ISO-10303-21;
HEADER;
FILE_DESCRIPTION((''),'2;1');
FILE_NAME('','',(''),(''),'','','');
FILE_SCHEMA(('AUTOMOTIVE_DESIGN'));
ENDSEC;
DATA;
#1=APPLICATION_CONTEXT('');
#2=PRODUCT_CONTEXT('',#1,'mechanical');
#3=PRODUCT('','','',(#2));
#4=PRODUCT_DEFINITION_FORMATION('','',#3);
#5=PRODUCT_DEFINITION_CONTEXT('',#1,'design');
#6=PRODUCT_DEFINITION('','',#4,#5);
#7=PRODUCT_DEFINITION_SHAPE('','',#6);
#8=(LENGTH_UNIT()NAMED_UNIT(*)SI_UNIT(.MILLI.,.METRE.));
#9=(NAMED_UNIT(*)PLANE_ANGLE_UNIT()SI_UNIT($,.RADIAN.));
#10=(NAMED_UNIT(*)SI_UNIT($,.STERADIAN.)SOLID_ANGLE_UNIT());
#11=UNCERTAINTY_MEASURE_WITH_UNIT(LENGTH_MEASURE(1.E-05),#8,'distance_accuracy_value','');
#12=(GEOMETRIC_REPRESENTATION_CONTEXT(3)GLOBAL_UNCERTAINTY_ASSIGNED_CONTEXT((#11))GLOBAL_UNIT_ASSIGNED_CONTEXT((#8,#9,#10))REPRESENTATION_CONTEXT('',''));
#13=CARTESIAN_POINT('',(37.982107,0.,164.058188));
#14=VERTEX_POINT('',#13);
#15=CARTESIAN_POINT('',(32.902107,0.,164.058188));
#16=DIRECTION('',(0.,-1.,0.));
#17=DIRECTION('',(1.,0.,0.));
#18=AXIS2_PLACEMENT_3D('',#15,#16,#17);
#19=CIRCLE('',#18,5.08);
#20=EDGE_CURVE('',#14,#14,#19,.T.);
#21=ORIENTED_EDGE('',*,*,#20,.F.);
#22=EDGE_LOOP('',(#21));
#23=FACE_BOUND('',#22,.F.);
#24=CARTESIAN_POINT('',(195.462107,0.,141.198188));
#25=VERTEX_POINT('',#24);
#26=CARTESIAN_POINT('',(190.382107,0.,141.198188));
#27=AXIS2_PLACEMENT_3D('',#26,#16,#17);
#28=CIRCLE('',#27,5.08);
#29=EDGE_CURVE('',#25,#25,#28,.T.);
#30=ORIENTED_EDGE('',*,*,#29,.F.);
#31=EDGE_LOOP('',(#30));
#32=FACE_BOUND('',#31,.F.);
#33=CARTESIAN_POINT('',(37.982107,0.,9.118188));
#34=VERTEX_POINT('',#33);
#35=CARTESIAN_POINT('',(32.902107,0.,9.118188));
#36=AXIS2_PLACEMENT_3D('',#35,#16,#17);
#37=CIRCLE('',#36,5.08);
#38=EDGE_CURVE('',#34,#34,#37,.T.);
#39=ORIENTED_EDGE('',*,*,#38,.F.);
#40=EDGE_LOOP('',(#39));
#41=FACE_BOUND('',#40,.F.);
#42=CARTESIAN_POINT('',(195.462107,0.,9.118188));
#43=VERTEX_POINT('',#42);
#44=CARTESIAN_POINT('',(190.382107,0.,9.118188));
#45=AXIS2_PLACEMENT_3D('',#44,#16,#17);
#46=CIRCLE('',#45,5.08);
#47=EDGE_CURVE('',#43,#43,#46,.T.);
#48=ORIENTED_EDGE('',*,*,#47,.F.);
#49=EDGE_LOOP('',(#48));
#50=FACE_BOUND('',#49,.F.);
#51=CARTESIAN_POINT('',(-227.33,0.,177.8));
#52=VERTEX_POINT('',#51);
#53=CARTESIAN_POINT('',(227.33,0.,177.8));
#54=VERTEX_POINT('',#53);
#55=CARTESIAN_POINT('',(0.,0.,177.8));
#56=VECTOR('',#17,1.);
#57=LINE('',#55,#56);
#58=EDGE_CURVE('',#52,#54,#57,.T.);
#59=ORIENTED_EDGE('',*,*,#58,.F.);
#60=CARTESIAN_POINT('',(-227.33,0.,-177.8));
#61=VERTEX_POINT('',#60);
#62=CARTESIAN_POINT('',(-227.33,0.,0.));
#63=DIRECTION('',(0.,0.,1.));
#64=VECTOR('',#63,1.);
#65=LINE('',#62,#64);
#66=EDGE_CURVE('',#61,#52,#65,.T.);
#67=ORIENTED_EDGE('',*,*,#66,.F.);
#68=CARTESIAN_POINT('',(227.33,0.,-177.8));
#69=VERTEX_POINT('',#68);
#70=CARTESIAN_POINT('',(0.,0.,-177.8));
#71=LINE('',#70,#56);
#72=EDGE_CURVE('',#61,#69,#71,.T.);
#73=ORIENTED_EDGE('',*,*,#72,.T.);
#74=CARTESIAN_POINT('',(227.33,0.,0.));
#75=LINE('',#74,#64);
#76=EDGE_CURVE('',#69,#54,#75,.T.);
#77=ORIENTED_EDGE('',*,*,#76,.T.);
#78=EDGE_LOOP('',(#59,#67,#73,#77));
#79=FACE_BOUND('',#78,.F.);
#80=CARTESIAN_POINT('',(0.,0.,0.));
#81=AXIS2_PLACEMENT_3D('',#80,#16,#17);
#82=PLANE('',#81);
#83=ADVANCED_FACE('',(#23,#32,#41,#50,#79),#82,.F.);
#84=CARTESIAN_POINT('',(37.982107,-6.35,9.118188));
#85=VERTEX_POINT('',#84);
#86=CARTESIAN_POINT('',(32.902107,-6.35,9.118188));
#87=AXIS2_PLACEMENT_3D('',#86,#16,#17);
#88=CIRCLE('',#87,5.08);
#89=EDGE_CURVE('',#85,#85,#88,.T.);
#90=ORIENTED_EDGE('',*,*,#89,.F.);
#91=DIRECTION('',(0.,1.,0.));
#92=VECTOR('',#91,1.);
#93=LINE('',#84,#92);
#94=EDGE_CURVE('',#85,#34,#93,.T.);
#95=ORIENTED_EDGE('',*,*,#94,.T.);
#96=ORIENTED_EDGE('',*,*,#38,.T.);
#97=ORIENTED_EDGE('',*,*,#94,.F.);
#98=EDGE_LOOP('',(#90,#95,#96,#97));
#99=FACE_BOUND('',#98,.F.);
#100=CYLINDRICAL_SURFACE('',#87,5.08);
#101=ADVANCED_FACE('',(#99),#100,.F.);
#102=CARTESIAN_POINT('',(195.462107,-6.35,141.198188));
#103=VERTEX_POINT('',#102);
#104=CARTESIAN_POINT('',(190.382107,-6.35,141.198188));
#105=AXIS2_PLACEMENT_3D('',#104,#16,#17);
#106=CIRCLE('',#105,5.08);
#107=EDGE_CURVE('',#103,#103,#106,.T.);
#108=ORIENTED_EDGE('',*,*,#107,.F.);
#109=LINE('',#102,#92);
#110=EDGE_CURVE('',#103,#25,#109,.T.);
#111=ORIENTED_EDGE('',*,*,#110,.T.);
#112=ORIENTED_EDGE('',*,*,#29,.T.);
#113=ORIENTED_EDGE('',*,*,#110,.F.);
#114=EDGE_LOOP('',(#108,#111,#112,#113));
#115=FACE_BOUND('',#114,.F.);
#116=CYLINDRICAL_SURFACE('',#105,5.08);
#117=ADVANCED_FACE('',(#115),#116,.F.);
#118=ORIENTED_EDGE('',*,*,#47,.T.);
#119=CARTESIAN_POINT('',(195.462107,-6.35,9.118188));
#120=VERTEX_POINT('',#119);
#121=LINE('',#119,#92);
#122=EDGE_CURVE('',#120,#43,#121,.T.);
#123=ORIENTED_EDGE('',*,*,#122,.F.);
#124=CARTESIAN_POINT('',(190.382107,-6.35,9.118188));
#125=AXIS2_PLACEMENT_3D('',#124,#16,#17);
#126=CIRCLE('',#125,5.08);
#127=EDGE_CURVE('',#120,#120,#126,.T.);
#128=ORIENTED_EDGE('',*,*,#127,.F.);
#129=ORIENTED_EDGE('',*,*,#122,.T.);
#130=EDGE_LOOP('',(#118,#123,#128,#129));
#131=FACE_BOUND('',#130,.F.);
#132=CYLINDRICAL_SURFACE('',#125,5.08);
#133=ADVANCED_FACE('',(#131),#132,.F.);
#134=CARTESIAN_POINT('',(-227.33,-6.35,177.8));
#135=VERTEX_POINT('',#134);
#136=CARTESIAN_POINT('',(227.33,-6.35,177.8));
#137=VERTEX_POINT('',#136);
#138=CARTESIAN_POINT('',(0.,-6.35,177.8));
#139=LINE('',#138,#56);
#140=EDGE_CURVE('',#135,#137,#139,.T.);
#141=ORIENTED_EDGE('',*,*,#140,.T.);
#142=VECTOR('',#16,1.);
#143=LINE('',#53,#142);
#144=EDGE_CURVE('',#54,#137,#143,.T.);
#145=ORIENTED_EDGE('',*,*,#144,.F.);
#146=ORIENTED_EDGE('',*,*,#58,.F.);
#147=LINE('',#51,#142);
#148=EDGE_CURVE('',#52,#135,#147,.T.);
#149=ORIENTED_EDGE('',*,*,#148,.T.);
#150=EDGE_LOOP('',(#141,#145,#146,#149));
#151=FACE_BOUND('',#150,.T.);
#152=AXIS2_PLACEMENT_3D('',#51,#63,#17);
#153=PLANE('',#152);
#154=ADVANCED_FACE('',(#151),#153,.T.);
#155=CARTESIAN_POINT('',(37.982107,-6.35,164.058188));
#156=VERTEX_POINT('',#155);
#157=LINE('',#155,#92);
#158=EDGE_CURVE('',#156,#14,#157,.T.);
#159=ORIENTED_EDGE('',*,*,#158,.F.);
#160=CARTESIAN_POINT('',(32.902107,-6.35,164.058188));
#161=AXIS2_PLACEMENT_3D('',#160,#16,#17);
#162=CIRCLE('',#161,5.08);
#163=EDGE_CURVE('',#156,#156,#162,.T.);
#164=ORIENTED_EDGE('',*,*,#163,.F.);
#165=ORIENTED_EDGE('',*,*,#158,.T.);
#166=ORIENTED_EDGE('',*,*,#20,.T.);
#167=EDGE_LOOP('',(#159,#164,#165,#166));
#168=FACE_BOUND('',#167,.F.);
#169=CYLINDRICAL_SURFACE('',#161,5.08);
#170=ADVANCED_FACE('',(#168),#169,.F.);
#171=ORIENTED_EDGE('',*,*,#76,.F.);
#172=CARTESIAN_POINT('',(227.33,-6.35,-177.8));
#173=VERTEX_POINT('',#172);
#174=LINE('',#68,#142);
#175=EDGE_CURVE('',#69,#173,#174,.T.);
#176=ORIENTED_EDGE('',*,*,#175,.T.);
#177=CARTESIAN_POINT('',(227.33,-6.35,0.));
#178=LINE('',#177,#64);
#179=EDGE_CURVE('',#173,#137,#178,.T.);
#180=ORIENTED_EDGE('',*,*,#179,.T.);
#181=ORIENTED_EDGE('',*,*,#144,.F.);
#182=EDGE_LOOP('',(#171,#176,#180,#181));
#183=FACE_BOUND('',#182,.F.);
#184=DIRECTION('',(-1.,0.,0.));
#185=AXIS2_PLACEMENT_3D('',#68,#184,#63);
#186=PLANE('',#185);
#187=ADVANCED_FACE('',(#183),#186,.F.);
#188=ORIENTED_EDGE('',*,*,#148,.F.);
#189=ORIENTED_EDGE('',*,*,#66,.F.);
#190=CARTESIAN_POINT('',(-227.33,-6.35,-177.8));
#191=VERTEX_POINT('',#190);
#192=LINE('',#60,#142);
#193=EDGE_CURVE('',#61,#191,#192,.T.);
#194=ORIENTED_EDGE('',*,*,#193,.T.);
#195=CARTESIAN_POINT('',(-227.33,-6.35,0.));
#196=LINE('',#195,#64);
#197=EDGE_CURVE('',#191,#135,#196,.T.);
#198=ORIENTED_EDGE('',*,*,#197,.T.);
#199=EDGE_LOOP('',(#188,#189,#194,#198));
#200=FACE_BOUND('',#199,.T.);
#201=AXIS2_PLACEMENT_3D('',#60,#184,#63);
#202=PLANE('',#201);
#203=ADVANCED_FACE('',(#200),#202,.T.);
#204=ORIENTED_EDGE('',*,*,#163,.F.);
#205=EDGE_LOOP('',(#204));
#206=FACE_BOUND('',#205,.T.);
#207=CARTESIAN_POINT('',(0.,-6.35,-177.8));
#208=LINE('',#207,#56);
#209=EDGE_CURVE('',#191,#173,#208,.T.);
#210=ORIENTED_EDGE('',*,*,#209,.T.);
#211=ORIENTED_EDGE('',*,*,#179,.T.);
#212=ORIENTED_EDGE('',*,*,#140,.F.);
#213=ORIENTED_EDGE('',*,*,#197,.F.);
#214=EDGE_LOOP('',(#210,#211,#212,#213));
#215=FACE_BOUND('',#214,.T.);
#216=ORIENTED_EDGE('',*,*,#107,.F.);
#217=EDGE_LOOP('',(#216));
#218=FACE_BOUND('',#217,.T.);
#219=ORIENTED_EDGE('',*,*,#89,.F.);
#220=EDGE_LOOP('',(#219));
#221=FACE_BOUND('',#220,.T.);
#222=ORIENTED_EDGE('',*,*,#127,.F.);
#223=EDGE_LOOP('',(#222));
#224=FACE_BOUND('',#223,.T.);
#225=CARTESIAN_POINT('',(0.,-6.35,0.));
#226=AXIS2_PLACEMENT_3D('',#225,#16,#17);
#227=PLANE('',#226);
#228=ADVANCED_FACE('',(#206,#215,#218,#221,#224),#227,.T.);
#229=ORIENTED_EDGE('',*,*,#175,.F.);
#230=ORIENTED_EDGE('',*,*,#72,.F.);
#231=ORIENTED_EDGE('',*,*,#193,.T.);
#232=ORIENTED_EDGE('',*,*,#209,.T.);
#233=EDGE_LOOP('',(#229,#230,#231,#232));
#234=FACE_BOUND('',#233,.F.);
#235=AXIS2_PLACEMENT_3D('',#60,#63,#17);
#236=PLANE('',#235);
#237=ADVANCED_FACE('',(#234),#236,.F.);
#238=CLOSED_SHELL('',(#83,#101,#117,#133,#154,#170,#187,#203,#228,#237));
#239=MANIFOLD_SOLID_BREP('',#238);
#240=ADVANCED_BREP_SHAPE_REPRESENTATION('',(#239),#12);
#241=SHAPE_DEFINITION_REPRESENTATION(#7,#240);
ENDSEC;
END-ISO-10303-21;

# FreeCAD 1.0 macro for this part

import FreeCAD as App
import Part
import Sketcher
Q = App.Units.Quantity


def add_polygon(sketch, points):
    """Adds a closed chain of lines whose ends are joined by coincident constraints."""
    first, n = sketch.GeometryCount, len(points)
    for a, b in zip(points, points[1:] + points[:1]):
        sketch.addGeometry(Part.LineSegment(App.Vector(*a, 0), App.Vector(*b, 0)), False)
    for i in range(n):
        sketch.addConstraint(Sketcher.Constraint("Coincident", first + i, 2, first + (i + 1) % n, 1))

doc = App.newDocument("Part")
params = doc.addObject("Spreadsheet::Sheet", "Params")
for row, (alias, value) in enumerate([
    ("sketch1_height", "14 in"),
    ("sketch1_width", "17.9 in"),
    ("pad1_length", "0.25 in"),
    ("sketch2_diameter", "0.4 in"),
], start=1):
    params.set(f"A{row}", alias)
    params.set(f"B{row}", "=" + value)
    params.setAlias(f"B{row}", alias)

body = doc.addObject("PartDesign::Body", "Body")

# Sketch on XZ plane
sketch1 = body.newObject("Sketcher::SketchObject", "Sketch")
sketch1.AttachmentSupport = (doc.getObject("XZ_Plane"), [""])
sketch1.MapMode = "FlatFace"
add_polygon(sketch1, [(-227.33, 177.8), (-227.33, -177.8), (227.33, -177.8), (227.33, 177.8)])  # lines 0-3
sketch1.addConstraint([
    Sketcher.Constraint("Vertical", 0),
    Sketcher.Constraint("Horizontal", 1),
    Sketcher.Constraint("Vertical", 2),
    Sketcher.Constraint("Horizontal", 3),
    Sketcher.Constraint("Symmetric", 0, 2, 2, 2, -1, 1),
    Sketcher.Constraint("DistanceY", 0, 2, 0, 1, Q("14 in")),
    Sketcher.Constraint("DistanceX", 1, 1, 1, 2, Q("17.9 in")),
])
sketch1.setExpression("Constraints[9]", "Params.sketch1_height")
sketch1.setExpression("Constraints[10]", "Params.sketch1_width")
pad1 = body.newObject("PartDesign::Pad", "Pad")
pad1.Profile = sketch1
pad1.setExpression("Length", "Params.pad1_length")

# Sketch on XZ plane
sketch2 = body.newObject("Sketcher::SketchObject", "Sketch001")
sketch2.AttachmentSupport = (doc.getObject("XZ_Plane"), [""])
sketch2.MapMode = "FlatFace"
sketch2.AttachmentOffset = App.Placement(App.Vector(0, 0, 0.25 * 25.4), App.Rotation())
sketch2.addGeometry([
    Part.Circle(App.Vector(32.902107, 164.058188, 0), App.Vector(0, 0, 1), 5.08),
    Part.Circle(App.Vector(190.382107, 141.198188, 0), App.Vector(0, 0, 1), 5.08),
    Part.Circle(App.Vector(190.382107, 9.118188, 0), App.Vector(0, 0, 1), 5.08),
    Part.Circle(App.Vector(32.902107, 9.118188, 0), App.Vector(0, 0, 1), 5.08),
], False)
sketch2.addConstraint([
    Sketcher.Constraint("Equal", 0, 1),
    Sketcher.Constraint("Equal", 1, 2),
    Sketcher.Constraint("Equal", 2, 3),
    Sketcher.Constraint("Horizontal", 2, 3, 3, 3),
    Sketcher.Constraint("Vertical", 1, 3, 2, 3),
    Sketcher.Constraint("Vertical", 0, 3, 3, 3),
    Sketcher.Constraint("Diameter", 0, Q("0.4 in")),
    Sketcher.Constraint("DistanceX", 0, 3, 1, 3, Q("6.2 in")),
    Sketcher.Constraint("DistanceY", 1, 3, 0, 3, Q("0.9 in")),
    Sketcher.Constraint("DistanceY", 2, 3, 1, 3, Q("5.2 in")),
    Sketcher.Constraint("DistanceY", -1, 1, 0, 3, Q("164.058188 mm")),
    Sketcher.Constraint("DistanceX", -1, 1, 0, 3, Q("32.902107 mm")),
])
sketch2.setExpression("Constraints[6]", "Params.sketch2_diameter")
pocket1 = body.newObject("PartDesign::Pocket", "Pocket")
pocket1.Profile = sketch2
pocket1.Type = "ThroughAll"

doc.recompute()
